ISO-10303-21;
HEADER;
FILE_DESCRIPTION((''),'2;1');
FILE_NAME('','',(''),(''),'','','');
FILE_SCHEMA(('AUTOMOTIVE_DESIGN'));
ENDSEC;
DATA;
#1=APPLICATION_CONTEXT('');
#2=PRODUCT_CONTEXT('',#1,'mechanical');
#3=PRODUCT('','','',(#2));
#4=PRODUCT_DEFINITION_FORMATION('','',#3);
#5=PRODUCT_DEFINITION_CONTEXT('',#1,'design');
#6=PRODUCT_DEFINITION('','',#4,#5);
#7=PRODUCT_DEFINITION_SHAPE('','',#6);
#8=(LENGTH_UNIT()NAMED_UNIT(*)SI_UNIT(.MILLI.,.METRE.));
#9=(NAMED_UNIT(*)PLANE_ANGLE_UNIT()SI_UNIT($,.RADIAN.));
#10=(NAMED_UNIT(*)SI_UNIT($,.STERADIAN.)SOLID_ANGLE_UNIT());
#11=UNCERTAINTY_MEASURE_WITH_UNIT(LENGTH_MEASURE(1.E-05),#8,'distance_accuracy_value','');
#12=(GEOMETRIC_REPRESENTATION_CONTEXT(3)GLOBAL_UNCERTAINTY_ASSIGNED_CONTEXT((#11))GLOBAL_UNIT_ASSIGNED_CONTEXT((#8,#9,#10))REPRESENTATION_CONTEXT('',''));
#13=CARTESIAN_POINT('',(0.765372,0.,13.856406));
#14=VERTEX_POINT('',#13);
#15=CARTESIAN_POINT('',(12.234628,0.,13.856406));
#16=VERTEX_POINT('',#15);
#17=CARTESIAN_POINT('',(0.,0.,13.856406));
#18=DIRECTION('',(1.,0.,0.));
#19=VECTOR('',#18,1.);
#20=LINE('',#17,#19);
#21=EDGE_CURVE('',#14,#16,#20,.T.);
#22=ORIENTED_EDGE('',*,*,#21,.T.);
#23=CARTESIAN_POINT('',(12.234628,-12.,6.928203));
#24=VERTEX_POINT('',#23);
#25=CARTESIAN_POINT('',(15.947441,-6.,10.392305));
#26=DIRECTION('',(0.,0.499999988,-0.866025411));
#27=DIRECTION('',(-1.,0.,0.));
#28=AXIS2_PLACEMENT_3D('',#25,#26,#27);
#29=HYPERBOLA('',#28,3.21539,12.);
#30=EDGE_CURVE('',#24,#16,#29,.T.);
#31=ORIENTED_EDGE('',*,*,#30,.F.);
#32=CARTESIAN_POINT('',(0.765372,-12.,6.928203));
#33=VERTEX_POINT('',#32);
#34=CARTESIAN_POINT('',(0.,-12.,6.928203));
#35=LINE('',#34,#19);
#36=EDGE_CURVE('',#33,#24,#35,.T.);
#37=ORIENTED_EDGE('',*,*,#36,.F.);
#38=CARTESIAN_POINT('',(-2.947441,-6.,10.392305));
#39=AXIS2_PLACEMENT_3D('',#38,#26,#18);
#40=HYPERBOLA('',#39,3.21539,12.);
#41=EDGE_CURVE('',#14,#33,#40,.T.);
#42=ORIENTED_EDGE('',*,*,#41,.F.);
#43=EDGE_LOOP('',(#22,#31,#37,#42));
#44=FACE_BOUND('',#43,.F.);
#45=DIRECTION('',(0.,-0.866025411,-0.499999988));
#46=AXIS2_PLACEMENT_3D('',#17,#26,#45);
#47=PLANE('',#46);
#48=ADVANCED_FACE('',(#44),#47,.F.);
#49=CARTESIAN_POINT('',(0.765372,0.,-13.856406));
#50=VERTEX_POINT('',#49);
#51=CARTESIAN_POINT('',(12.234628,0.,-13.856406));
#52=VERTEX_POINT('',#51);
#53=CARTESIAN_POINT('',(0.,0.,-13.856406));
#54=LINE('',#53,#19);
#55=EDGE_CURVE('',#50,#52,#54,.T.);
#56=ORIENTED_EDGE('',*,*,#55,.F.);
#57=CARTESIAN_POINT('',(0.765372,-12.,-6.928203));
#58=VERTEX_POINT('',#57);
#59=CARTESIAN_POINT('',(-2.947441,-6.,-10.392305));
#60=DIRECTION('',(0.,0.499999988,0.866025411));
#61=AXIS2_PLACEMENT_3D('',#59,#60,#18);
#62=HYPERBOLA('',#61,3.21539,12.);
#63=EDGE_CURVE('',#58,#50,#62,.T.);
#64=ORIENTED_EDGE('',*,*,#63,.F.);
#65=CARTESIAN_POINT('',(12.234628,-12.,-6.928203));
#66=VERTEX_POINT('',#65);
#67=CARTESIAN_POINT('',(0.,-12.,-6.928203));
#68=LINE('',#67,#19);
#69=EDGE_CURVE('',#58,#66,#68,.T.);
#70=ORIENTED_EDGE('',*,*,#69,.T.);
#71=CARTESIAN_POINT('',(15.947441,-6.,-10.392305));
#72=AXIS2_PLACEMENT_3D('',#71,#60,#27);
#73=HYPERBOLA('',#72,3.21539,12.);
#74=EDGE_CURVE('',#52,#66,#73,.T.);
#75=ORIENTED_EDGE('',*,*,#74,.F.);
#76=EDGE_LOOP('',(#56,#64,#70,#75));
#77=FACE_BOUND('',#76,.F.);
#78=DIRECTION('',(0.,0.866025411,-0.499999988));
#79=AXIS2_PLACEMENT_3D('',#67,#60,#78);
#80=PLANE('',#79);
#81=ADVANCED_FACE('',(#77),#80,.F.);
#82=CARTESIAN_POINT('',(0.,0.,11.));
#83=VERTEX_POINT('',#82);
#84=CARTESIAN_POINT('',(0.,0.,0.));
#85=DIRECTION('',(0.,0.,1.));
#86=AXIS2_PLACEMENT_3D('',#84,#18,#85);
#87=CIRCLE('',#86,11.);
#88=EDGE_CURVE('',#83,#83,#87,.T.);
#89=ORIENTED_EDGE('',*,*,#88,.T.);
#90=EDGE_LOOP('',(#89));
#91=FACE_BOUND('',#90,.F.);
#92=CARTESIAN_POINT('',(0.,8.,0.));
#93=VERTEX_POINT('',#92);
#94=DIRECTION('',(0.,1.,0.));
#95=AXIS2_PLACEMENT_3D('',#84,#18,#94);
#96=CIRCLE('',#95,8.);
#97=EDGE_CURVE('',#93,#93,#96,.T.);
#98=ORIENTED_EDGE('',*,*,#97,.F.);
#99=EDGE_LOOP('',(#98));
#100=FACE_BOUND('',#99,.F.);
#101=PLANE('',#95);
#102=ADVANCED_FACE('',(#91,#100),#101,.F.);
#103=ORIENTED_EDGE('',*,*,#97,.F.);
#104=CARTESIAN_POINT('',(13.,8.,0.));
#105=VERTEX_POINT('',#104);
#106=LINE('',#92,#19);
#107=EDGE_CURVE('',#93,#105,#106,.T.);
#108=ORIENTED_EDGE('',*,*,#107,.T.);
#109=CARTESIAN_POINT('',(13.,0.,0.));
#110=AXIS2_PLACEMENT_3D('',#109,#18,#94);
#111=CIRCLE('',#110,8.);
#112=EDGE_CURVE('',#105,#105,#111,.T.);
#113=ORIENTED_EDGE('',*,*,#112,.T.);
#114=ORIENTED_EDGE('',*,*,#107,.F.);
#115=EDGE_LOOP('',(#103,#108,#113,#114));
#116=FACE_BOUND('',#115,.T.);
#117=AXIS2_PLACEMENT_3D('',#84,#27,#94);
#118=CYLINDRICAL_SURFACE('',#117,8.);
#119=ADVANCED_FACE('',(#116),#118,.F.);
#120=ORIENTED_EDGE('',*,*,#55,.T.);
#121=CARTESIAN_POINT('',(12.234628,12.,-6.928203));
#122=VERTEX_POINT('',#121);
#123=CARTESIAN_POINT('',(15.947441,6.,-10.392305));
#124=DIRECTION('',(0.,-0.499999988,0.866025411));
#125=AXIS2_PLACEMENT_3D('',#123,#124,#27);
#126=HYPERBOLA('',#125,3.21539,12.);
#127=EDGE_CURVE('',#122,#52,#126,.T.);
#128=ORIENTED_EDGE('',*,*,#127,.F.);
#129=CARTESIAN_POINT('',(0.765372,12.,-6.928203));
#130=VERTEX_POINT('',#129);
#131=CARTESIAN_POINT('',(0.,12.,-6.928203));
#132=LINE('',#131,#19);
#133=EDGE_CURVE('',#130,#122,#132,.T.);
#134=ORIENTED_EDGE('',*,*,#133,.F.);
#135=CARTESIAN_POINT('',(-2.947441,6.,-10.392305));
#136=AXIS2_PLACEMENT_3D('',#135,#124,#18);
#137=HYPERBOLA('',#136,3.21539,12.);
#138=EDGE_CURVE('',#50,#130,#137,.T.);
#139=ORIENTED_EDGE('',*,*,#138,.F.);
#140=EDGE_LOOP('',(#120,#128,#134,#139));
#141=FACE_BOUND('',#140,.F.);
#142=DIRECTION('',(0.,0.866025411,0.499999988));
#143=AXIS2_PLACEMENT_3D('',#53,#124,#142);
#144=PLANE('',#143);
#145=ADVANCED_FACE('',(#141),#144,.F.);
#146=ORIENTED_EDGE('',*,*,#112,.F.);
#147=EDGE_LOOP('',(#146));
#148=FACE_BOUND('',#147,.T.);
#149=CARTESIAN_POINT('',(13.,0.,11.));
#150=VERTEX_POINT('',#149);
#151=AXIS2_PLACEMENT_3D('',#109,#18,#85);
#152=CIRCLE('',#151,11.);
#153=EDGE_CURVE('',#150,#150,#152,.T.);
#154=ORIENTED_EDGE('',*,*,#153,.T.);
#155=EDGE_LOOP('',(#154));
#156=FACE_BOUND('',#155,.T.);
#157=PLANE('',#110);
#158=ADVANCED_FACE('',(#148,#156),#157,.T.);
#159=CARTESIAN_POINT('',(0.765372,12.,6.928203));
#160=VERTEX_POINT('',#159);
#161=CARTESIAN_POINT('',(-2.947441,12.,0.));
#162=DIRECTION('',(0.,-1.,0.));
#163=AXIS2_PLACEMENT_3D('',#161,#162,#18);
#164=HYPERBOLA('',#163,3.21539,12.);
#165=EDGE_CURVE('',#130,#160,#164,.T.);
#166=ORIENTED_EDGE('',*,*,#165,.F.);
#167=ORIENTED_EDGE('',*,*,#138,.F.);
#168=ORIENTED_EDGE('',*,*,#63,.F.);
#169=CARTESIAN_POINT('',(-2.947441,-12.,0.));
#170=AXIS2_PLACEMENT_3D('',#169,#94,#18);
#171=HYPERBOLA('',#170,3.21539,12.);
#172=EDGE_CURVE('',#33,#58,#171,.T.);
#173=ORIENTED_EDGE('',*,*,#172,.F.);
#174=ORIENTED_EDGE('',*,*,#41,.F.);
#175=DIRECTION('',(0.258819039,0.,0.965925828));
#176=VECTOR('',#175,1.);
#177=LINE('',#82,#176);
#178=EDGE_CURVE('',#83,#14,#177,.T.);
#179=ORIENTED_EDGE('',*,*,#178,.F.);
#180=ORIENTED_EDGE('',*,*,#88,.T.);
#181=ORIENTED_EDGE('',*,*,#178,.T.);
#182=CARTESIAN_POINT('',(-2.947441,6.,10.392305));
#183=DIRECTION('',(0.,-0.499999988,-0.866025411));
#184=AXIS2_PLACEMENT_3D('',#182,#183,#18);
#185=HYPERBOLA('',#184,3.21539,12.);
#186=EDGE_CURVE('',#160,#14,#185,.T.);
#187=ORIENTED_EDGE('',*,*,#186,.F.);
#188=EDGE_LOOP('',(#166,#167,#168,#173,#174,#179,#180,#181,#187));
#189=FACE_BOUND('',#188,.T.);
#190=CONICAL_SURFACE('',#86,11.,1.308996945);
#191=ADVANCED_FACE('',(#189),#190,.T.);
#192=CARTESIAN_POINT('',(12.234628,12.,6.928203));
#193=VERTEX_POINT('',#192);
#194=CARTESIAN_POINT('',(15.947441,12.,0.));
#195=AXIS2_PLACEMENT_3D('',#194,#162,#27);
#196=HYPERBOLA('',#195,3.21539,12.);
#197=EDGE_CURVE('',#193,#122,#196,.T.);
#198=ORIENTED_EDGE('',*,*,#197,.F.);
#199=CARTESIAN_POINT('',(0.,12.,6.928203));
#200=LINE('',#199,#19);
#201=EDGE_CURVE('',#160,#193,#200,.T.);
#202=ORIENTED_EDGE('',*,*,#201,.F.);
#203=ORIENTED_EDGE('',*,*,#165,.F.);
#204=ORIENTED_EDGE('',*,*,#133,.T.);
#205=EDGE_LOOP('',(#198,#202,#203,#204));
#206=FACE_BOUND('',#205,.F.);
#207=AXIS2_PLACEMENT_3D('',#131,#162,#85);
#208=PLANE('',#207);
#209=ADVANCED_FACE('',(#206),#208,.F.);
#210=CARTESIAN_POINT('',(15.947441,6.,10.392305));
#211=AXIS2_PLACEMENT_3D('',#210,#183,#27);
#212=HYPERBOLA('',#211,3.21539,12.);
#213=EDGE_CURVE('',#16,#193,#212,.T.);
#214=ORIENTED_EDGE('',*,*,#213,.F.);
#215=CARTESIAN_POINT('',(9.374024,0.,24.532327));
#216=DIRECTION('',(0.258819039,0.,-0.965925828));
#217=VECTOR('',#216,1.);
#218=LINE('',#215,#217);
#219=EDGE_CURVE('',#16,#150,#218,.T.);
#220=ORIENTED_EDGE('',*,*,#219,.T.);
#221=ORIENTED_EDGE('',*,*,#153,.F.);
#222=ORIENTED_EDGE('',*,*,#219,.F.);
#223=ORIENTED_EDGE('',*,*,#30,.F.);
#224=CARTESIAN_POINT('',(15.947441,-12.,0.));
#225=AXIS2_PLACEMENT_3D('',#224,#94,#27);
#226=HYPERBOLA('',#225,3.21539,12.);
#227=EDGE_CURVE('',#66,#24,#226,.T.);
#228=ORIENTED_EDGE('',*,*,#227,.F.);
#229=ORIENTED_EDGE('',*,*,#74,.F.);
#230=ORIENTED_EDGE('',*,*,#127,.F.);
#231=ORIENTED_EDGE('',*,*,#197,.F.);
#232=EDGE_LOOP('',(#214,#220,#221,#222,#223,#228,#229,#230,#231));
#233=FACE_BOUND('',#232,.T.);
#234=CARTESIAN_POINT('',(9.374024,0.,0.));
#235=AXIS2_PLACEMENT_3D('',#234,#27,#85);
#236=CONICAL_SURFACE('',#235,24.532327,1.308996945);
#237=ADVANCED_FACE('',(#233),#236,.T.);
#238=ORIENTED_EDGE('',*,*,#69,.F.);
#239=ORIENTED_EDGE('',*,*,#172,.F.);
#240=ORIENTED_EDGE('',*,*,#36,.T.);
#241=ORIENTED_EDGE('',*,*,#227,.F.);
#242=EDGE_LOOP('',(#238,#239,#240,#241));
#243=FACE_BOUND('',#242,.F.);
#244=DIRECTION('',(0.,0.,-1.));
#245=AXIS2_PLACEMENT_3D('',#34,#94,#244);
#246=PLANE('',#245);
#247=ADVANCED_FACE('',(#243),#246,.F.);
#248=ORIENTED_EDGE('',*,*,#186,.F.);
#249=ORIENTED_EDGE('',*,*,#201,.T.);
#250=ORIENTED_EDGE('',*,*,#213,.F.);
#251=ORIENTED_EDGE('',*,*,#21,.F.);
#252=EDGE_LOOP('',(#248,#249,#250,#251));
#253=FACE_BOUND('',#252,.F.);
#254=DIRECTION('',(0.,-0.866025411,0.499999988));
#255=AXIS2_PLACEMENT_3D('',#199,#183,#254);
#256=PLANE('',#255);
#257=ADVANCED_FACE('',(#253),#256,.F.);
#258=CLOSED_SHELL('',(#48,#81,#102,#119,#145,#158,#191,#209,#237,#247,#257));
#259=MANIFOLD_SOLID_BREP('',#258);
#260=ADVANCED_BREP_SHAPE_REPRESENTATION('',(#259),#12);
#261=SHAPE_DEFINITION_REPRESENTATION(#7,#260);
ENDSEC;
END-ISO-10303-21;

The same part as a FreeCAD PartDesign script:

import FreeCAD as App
import Part
import Sketcher
Q = App.Units.Quantity

doc = App.newDocument("Part")
body = doc.addObject("PartDesign::Body", "Body")

# Sketch on YZ plane
sketch1 = doc.addObject("Sketcher::SketchObject", "Sketch")
body.addObject(sketch1)
sketch1.AttachmentSupport = (doc.YZ_Plane, [""])
sketch1.MapMode = "FlatFace"
sketch1.addGeometry(Part.LineSegment(App.Vector(12, 7, 0), App.Vector(0, 14, 0)), False)
sketch1.addGeometry(Part.LineSegment(App.Vector(0, 14, 0), App.Vector(-12, 7, 0)), False)
sketch1.addGeometry(Part.LineSegment(App.Vector(-12, 7, 0), App.Vector(-12, -7, 0)), False)
sketch1.addGeometry(Part.LineSegment(App.Vector(-12, -7, 0), App.Vector(0, -14, 0)), False)
sketch1.addGeometry(Part.LineSegment(App.Vector(0, -14, 0), App.Vector(12, -7, 0)), False)
sketch1.addGeometry(Part.LineSegment(App.Vector(12, -7, 0), App.Vector(12, 7, 0)), False)
sketch1.addGeometry(Part.Circle(App.Vector(0, 0, 0), App.Vector(0, 0, 1), 8), False)
sketch1.addConstraint(Sketcher.Constraint("Coincident", 0, 2, 1, 1))
sketch1.addConstraint(Sketcher.Constraint("Coincident", 1, 2, 2, 1))
sketch1.addConstraint(Sketcher.Constraint("Coincident", 2, 2, 3, 1))
sketch1.addConstraint(Sketcher.Constraint("Coincident", 3, 2, 4, 1))
sketch1.addConstraint(Sketcher.Constraint("Coincident", 4, 2, 5, 1))
sketch1.addConstraint(Sketcher.Constraint("Coincident", 5, 2, 0, 1))
sketch1.addConstraint(Sketcher.Constraint("Vertical", 2))
sketch1.addConstraint(Sketcher.Constraint("Vertical", 5))
sketch1.addConstraint(Sketcher.Constraint("Coincident", 6, 3, -1, 1))
sketch1.addConstraint(Sketcher.Constraint("Symmetric", 0, 2, 3, 2, -1, 1))
sketch1.addConstraint(Sketcher.Constraint("Symmetric", 1, 2, 4, 2, -1, 1))
sketch1.addConstraint(Sketcher.Constraint("PointOnObject", 0, 2, -2))
sketch1.addConstraint(Sketcher.Constraint("Parallel", 0, 3))
sketch1.addConstraint(Sketcher.Constraint("Horizontal", 2, 2, 4, 2))
sketch1.addConstraint(Sketcher.Constraint("Diameter", 6, 16.0))
sketch1.addConstraint(Sketcher.Constraint("Angle", 0, Q("150.000001 deg")))
sketch1.addConstraint(Sketcher.Constraint("DistanceX", 1, 2, -1, 1, 12.0))
sketch1.addConstraint(Sketcher.Constraint("DistanceY", 2, 2, 2, 1, 13.856406))
pad1 = doc.addObject("PartDesign::Pad", "Pad")
body.addObject(pad1)
pad1.Profile = sketch1
pad1.Length = 13

# Sketch on XZ plane
sketch2 = doc.addObject("Sketcher::SketchObject", "Sketch001")
body.addObject(sketch2)
sketch2.AttachmentSupport = (doc.XZ_Plane, [""])
sketch2.MapMode = "FlatFace"
sketch2.addGeometry(Part.LineSegment(App.Vector(0, 24.5, 0), App.Vector(0, 11, 0)), False)
sketch2.addGeometry(Part.LineSegment(App.Vector(0, 11, 0), App.Vector(3.6, 24.5, 0)), False)
sketch2.addGeometry(Part.LineSegment(App.Vector(3.6, 24.5, 0), App.Vector(0, 24.5, 0)), False)
sketch2.addGeometry(Part.LineSegment(App.Vector(9.4, 24.5, 0), App.Vector(13, 11, 0)), False)
sketch2.addGeometry(Part.LineSegment(App.Vector(13, 11, 0), App.Vector(13, 24.5, 0)), False)
sketch2.addGeometry(Part.LineSegment(App.Vector(13, 24.5, 0), App.Vector(9.4, 24.5, 0)), False)
sketch2.addConstraint(Sketcher.Constraint("Coincident", 0, 2, 1, 1))
sketch2.addConstraint(Sketcher.Constraint("Coincident", 1, 2, 2, 1))
sketch2.addConstraint(Sketcher.Constraint("Coincident", 2, 2, 0, 1))
sketch2.addConstraint(Sketcher.Constraint("Coincident", 3, 2, 4, 1))
sketch2.addConstraint(Sketcher.Constraint("Coincident", 4, 2, 5, 1))
sketch2.addConstraint(Sketcher.Constraint("Coincident", 5, 2, 3, 1))
sketch2.addConstraint(Sketcher.Constraint("Vertical", 0))
sketch2.addConstraint(Sketcher.Constraint("Horizontal", 2))
sketch2.addConstraint(Sketcher.Constraint("Vertical", 4))
sketch2.addConstraint(Sketcher.Constraint("Horizontal", 5))
sketch2.addConstraint(Sketcher.Constraint("PointOnObject", 0, 2, -2))
sketch2.addConstraint(Sketcher.Constraint("Horizontal", 0, 2, 3, 2))
sketch2.addConstraint(Sketcher.Constraint("Horizontal", 2, 2, 4, 2))
sketch2.addConstraint(Sketcher.Constraint("Equal", 2, 5))
sketch2.addConstraint(Sketcher.Constraint("Angle", 1, Q("75 deg")))
sketch2.addConstraint(Sketcher.Constraint("DistanceY", -1, 1, 0, 2, 11.0))
sketch2.addConstraint(Sketcher.Constraint("DistanceX", -1, 1, 3, 2, 13.0))
sketch2.addConstraint(Sketcher.Constraint("DistanceX", 2, 2, 2, 1, 3.625976))
groove = doc.addObject("PartDesign::Groove", "Groove")
body.addObject(groove)
groove.Profile = sketch2
groove.ReferenceAxis = (sketch2, ["H_Axis"])
groove.Angle = 360

doc.recompute()
